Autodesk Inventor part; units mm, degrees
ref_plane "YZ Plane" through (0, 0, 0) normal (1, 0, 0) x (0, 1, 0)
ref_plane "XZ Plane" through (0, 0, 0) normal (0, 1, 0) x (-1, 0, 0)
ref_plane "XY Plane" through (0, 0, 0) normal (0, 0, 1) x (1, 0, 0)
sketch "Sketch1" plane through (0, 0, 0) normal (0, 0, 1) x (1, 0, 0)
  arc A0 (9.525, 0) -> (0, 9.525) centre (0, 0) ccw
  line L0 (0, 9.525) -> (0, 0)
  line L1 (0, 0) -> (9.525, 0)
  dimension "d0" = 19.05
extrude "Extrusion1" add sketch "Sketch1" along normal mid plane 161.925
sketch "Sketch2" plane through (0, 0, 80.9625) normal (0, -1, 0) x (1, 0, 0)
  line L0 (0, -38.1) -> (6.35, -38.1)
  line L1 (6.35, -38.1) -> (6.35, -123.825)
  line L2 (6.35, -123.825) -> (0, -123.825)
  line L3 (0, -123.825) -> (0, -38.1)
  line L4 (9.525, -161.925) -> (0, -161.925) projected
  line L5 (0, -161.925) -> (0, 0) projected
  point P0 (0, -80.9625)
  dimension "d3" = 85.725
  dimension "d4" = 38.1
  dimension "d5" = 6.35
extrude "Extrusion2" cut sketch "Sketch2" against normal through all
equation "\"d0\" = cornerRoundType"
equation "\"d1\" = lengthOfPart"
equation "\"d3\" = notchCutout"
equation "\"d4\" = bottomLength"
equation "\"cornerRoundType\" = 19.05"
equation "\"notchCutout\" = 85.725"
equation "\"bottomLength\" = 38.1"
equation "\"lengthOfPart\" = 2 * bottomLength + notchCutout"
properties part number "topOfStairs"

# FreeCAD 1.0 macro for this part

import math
import FreeCAD as App
import Part
import Sketcher

V = App.Vector
Q = App.Units.Quantity


def add_polygon(sketch, points):
    """Adds a closed chain of lines whose ends are joined by coincident constraints."""
    first, n = sketch.GeometryCount, len(points)
    for a, b in zip(points, points[1:] + points[:1]):
        sketch.addGeometry(Part.LineSegment(App.Vector(*a, 0), App.Vector(*b, 0)), False)
    for i in range(n):
        sketch.addConstraint(Sketcher.Constraint("Coincident", first + i, 2, first + (i + 1) % n, 1))

doc = App.newDocument("Part")
params = doc.addObject("Spreadsheet::Sheet", "Params")
for row, (alias, value) in enumerate([
    ("sketch1_radius", "0.375 in"),
    ("pad1_length", "6.375 in"),
    ("sketch2_width", "0.25 in"),
    ("sketch2_height", "3.375 in"),
], start=1):
    params.set(f"A{row}", alias)
    params.set(f"B{row}", "=" + value)
    params.setAlias(f"B{row}", alias)

body = doc.addObject("PartDesign::Body", "Body")

# Sketch on XY plane
sketch1 = body.newObject("Sketcher::SketchObject", "Sketch")
sketch1.AttachmentSupport = (doc.getObject("XY_Plane"), [""])
sketch1.MapMode = "FlatFace"
sketch1.addGeometry([
    Part.LineSegment(V(0, 0, 0), V(9.525, 0, 0)),
    Part.ArcOfCircle(Part.Circle(V(0, 0, 0), V(0, 0, 1), 9.525), math.radians(0), math.radians(90)),
    Part.LineSegment(V(0, 9.525, 0), V(0, 0, 0)),
], False)
sketch1.addConstraint([
    Sketcher.Constraint("Coincident", 0, 2, 1, 1),
    Sketcher.Constraint("Coincident", 1, 2, 2, 1),
    Sketcher.Constraint("Coincident", 2, 2, 0, 1),
    Sketcher.Constraint("Horizontal", 0),
    Sketcher.Constraint("Vertical", 2),
    Sketcher.Constraint("Coincident", 1, 3, -1, 1),
    Sketcher.Constraint("Coincident", 2, 2, -1, 1),
    Sketcher.Constraint("Radius", 1, Q("0.375 in")),
])
sketch1.setExpression("Constraints[7]", "Params.sketch1_radius")
pad1 = body.newObject("PartDesign::Pad", "Pad")
pad1.Profile = sketch1
pad1.setExpression("Length", "Params.pad1_length")
pad1.Midplane = True

# Sketch on XZ plane
sketch2 = body.newObject("Sketcher::SketchObject", "Sketch001")
sketch2.AttachmentSupport = (doc.getObject("XZ_Plane"), [""])
sketch2.MapMode = "FlatFace"
add_polygon(sketch2, [(6.35, 42.8625), (0, 42.8625), (0, -42.8625), (6.35, -42.8625)])  # lines 0-3
sketch2.addConstraint([
    Sketcher.Constraint("Horizontal", 0),
    Sketcher.Constraint("Vertical", 1),
    Sketcher.Constraint("Horizontal", 2),
    Sketcher.Constraint("Vertical", 3),
    Sketcher.Constraint("Symmetric", 0, 2, 1, 2, -1, 1),
    Sketcher.Constraint("DistanceX", 0, 2, 0, 1, Q("0.25 in")),
    Sketcher.Constraint("DistanceY", 1, 2, 1, 1, Q("3.375 in")),
])
sketch2.setExpression("Constraints[9]", "Params.sketch2_width")
sketch2.setExpression("Constraints[10]", "Params.sketch2_height")
pocket1 = body.newObject("PartDesign::Pocket", "Pocket")
pocket1.Profile = sketch2
pocket1.Type = "ThroughAll"

doc.recompute()
